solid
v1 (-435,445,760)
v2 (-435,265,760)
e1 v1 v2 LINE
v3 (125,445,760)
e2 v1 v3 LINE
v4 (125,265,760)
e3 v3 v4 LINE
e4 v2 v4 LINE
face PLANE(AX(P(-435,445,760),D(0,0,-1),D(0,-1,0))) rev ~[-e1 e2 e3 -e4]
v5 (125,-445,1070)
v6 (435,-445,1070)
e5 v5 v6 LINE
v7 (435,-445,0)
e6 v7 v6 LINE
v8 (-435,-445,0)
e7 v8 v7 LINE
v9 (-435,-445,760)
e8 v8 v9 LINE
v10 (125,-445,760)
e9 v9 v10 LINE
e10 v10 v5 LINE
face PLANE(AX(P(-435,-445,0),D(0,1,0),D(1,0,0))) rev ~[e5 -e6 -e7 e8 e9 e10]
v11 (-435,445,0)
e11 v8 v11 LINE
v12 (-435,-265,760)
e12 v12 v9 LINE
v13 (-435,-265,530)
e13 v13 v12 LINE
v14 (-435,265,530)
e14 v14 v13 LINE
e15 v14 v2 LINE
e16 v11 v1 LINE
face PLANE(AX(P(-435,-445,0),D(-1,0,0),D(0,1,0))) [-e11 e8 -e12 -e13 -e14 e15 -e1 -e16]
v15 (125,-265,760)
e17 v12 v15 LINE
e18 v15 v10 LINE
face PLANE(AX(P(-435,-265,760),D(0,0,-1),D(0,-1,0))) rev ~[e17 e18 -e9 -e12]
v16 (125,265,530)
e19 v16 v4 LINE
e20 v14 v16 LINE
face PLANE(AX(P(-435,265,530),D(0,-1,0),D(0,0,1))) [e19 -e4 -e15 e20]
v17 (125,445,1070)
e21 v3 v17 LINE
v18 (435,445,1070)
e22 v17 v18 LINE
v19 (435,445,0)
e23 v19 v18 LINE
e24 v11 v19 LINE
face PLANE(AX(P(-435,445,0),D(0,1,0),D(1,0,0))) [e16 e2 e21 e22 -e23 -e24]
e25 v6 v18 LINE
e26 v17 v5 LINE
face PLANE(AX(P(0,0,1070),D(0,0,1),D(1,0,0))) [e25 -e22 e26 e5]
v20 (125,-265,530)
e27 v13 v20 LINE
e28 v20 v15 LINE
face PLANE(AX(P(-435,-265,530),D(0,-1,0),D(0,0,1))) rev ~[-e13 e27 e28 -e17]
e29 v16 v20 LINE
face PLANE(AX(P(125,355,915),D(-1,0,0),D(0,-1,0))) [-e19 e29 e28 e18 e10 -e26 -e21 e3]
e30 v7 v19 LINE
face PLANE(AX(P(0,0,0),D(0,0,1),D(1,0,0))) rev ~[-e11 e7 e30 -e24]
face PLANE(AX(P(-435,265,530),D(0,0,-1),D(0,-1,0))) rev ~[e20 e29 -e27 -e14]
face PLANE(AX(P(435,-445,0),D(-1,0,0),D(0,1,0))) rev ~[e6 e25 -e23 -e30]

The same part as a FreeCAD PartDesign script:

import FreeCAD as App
import Part
import Sketcher

V = App.Vector
Q = App.Units.Quantity


def add_polygon(sketch, points):
    """Adds a closed chain of lines whose ends are joined by coincident constraints."""
    first, n = sketch.GeometryCount, len(points)
    for a, b in zip(points, points[1:] + points[:1]):
        sketch.addGeometry(Part.LineSegment(App.Vector(*a, 0), App.Vector(*b, 0)), False)
    for i in range(n):
        sketch.addConstraint(Sketcher.Constraint("Coincident", first + i, 2, first + (i + 1) % n, 1))

doc = App.newDocument("Part")
params = doc.addObject("Spreadsheet::Sheet", "Params")
for row, (alias, value) in enumerate([
    ("sketch1_width", "870 mm"),
    ("sketch1_height", "890 mm"),
    ("pad1_length", "1070 mm"),
    ("sketch2_width", "530 mm"),
    ("sketch2_height", "540 mm"),
    ("pocket1_length", "560 mm"),
    ("sketch3_width", "180 mm"),
    ("sketch3_height", "310 mm"),
    ("pocket2_length", "560 mm"),
], start=1):
    params.set(f"A{row}", alias)
    params.set(f"B{row}", "=" + value)
    params.setAlias(f"B{row}", alias)

body = doc.addObject("PartDesign::Body", "Body")

# Sketch on XY plane
sketch1 = body.newObject("Sketcher::SketchObject", "Sketch")
sketch1.AttachmentSupport = (doc.getObject("XY_Plane"), [""])
sketch1.MapMode = "FlatFace"
add_polygon(sketch1, [(-435, 445), (-435, -445), (435, -445), (435, 445)])  # lines 0-3
sketch1.addConstraint([
    Sketcher.Constraint("Vertical", 0),
    Sketcher.Constraint("Horizontal", 1),
    Sketcher.Constraint("Vertical", 2),
    Sketcher.Constraint("Horizontal", 3),
    Sketcher.Constraint("Symmetric", 0, 2, 2, 2, -1, 1),
    Sketcher.Constraint("DistanceX", 1, 1, 1, 2, Q("870 mm")),
    Sketcher.Constraint("DistanceY", 0, 2, 0, 1, Q("890 mm")),
])
sketch1.setExpression("Constraints[9]", "Params.sketch1_width")
sketch1.setExpression("Constraints[10]", "Params.sketch1_height")
pad1 = body.newObject("PartDesign::Pad", "Pad")
pad1.Profile = sketch1
pad1.setExpression("Length", "Params.pad1_length")

# Sketch on YZ plane
sketch2 = body.newObject("Sketcher::SketchObject", "Sketch001")
sketch2.AttachmentSupport = (doc.getObject("YZ_Plane"), [""])
sketch2.MapMode = "FlatFace"
sketch2.AttachmentOffset = App.Placement(V(0, 0, -435), App.Rotation())
add_polygon(sketch2, [(265, 1070), (265, 530), (-265, 530), (-265, 1070)])  # lines 0-3
sketch2.addConstraint([
    Sketcher.Constraint("Vertical", 0),
    Sketcher.Constraint("Horizontal", 1),
    Sketcher.Constraint("Vertical", 2),
    Sketcher.Constraint("Horizontal", 3),
    Sketcher.Constraint("DistanceX", 1, 2, 1, 1, Q("530 mm")),
    Sketcher.Constraint("DistanceY", 0, 2, 0, 1, Q("540 mm")),
    Sketcher.Constraint("DistanceX", -1, 1, 0, 2, Q("265 mm")),
    Sketcher.Constraint("DistanceY", -1, 1, 0, 2, Q("530 mm")),
])
sketch2.setExpression("Constraints[8]", "Params.sketch2_width")
sketch2.setExpression("Constraints[9]", "Params.sketch2_height")
pocket1 = body.newObject("PartDesign::Pocket", "Pocket")
pocket1.Profile = sketch2
pocket1.setExpression("Length", "Params.pocket1_length")
pocket1.Reversed = True

# Sketch on YZ plane
sketch3 = body.newObject("Sketcher::SketchObject", "Sketch002")
sketch3.AttachmentSupport = (doc.getObject("YZ_Plane"), [""])
sketch3.MapMode = "FlatFace"
sketch3.AttachmentOffset = App.Placement(V(0, 0, -435), App.Rotation())
add_polygon(sketch3, [(445, 1070), (445, 760), (265, 760), (265, 1070)])  # lines 0-3
add_polygon(sketch3, [(-265, 1070), (-265, 760), (-445, 760), (-445, 1070)])  # lines 4-7
sketch3.addConstraint([
    Sketcher.Constraint("Vertical", 0),
    Sketcher.Constraint("Horizontal", 1),
    Sketcher.Constraint("Vertical", 2),
    Sketcher.Constraint("Horizontal", 3),
    Sketcher.Constraint("Vertical", 4),
    Sketcher.Constraint("Horizontal", 5),
    Sketcher.Constraint("Vertical", 6),
    Sketcher.Constraint("Horizontal", 7),
    Sketcher.Constraint("Symmetric", 1, 2, 4, 2, -2),
    Sketcher.Constraint("Symmetric", 3, 2, 6, 2, -2),
    Sketcher.Constraint("DistanceX", 1, 2, 1, 1, Q("180 mm")),
    Sketcher.Constraint("DistanceY", 0, 2, 0, 1, Q("310 mm")),
    Sketcher.Constraint("DistanceX", -1, 1, 0, 2, Q("445 mm")),
    Sketcher.Constraint("DistanceY", -1, 1, 0, 2, Q("760 mm")),
])
sketch3.setExpression("Constraints[18]", "Params.sketch3_width")
sketch3.setExpression("Constraints[19]", "Params.sketch3_height")
pocket2 = body.newObject("PartDesign::Pocket", "Pocket001")
pocket2.Profile = sketch3
pocket2.setExpression("Length", "Params.pocket2_length")
pocket2.Reversed = True

doc.recompute()
